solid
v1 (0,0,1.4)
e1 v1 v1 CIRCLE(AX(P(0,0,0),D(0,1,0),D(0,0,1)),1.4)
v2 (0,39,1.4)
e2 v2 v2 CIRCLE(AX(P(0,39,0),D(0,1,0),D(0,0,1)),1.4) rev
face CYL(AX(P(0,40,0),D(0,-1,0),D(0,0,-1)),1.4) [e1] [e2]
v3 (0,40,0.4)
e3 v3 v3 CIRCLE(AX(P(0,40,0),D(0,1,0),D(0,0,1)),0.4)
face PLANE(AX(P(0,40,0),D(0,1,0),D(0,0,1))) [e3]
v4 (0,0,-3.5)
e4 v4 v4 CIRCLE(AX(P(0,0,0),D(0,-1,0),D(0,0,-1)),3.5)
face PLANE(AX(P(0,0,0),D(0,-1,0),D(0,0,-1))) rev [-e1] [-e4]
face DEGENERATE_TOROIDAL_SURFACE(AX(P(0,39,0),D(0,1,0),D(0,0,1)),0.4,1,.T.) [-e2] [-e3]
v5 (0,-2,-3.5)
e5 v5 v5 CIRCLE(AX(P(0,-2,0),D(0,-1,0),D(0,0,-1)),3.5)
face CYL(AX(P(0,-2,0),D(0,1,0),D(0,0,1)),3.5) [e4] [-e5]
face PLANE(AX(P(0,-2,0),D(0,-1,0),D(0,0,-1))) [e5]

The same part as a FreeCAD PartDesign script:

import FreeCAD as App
import Part
import Sketcher

V = App.Vector


def edges_at(feature, points):
    """Names of the edges that pass closest to the given points."""
    edges = feature.Shape.Edges
    near = lambda p: min(range(len(edges)), key=lambda i: edges[i].distToShape(Part.Vertex(*p))[0])
    return sorted({f"Edge{near(p) + 1}" for p in points})

doc = App.newDocument("Part")
body = doc.addObject("PartDesign::Body", "Body")

sketch1 = body.newObject("Sketcher::SketchObject", "Sketch")
sketch1.AttachmentSupport = (doc.getObject("XZ_Plane"), [""])
sketch1.MapMode = "FlatFace"
sketch1.addGeometry(Part.Circle(V(0, 0, 0), V(0, 0, 1), 1.4), False)
sketch1.addConstraint([
    Sketcher.Constraint("Coincident", 0, 3, -1, 1),
    Sketcher.Constraint("Diameter", 0, 2.8),
])
pad1 = body.newObject("PartDesign::Pad", "Pad")
pad1.Profile = sketch1
pad1.Length = 40
pad1.Reversed = True

sketch2 = body.newObject("Sketcher::SketchObject", "Sketch001")
sketch2.AttachmentSupport = (doc.getObject("XZ_Plane"), [""])
sketch2.MapMode = "FlatFace"
sketch2.addGeometry(Part.Circle(V(0, 0, 0), V(0, 0, 1), 3.5), False)
sketch2.addConstraint([
    Sketcher.Constraint("Coincident", 0, 3, -1, 1),
    Sketcher.Constraint("Diameter", 0, 7.0),
])
pad2 = body.newObject("PartDesign::Pad", "Pad001")
pad2.Profile = sketch2
pad2.Length = 2
doc.recompute()

fillet = body.newObject("PartDesign::Fillet", "Fillet")
fillet.Base = (pad2, edges_at(pad2, [(0, 40, -1.4)]))
fillet.Radius = 1

doc.recompute()
